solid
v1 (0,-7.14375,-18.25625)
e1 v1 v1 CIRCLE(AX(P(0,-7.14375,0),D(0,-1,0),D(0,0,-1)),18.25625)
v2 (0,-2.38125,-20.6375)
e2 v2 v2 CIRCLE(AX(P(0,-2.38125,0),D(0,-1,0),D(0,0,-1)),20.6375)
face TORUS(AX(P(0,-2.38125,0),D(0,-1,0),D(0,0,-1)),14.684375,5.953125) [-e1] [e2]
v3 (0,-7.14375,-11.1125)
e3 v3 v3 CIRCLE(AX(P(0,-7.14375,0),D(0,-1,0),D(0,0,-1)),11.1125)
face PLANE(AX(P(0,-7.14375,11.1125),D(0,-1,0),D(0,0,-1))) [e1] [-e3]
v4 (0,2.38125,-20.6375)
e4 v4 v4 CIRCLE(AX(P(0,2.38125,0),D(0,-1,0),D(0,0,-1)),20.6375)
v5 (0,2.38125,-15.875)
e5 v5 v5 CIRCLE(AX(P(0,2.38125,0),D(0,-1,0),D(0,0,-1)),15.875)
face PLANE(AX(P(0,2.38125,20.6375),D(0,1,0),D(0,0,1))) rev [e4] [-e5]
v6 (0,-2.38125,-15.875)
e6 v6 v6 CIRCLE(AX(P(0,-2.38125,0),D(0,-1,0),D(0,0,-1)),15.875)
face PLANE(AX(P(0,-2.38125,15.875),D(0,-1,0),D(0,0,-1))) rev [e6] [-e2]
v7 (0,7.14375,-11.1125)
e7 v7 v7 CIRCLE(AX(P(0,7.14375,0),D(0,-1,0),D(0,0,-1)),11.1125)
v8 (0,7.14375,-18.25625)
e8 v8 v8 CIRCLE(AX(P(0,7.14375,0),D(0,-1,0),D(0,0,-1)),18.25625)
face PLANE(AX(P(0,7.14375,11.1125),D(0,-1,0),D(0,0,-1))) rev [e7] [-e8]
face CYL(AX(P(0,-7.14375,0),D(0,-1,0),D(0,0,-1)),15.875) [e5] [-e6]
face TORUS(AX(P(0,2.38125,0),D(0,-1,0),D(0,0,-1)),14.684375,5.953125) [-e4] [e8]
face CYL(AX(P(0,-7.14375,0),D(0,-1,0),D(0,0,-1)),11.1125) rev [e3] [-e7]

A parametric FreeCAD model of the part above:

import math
import FreeCAD as App
import Part
import Sketcher

V = App.Vector
Q = App.Units.Quantity

doc = App.newDocument("Part")
body = doc.addObject("PartDesign::Body", "Body")

sketch1 = doc.addObject("Sketcher::SketchObject", "Sketch")
body.addObject(sketch1)
sketch1.AttachmentSupport = (doc.YZ_Plane, [""])
sketch1.MapMode = "FlatFace"
sketch1.addGeometry([
    Part.LineSegment(V(-7.14375, 11.1125, 0), V(7.14375, 11.1125, 0)),
    Part.LineSegment(V(7.14375, 11.1125, 0), V(7.14375, 18.25625, 0)),
    Part.ArcOfCircle(Part.Circle(V(2.38125, 14.684375, 0), V(0, 0, 1), 5.953125), math.radians(36.869898), math.radians(90)),
    Part.LineSegment(V(2.38125, 20.6375, 0), V(2.38125, 15.875, 0)),
    Part.LineSegment(V(2.38125, 15.875, 0), V(-2.38125, 15.875, 0)),
    Part.LineSegment(V(-2.38125, 15.875, 0), V(-2.38125, 20.6375, 0)),
    Part.ArcOfCircle(Part.Circle(V(-2.38125, 14.684375, 0), V(0, 0, 1), 5.953125), math.radians(90), math.radians(143.130102)),
    Part.LineSegment(V(-7.14375, 18.25625, 0), V(-7.14375, 11.1125, 0)),
], False)
sketch1.addConstraint([
    Sketcher.Constraint("Coincident", 0, 2, 1, 1),
    Sketcher.Constraint("Coincident", 1, 2, 2, 1),
    Sketcher.Constraint("Coincident", 2, 2, 3, 1),
    Sketcher.Constraint("Coincident", 3, 2, 4, 1),
    Sketcher.Constraint("Coincident", 4, 2, 5, 1),
    Sketcher.Constraint("Coincident", 5, 2, 6, 1),
    Sketcher.Constraint("Coincident", 6, 2, 7, 1),
    Sketcher.Constraint("Coincident", 7, 2, 0, 1),
    Sketcher.Constraint("Horizontal", 0),
    Sketcher.Constraint("Vertical", 1),
    Sketcher.Constraint("Vertical", 3),
    Sketcher.Constraint("Horizontal", 4),
    Sketcher.Constraint("Vertical", 5),
    Sketcher.Constraint("Vertical", 7),
    Sketcher.Constraint("Equal", 2, 6),
    Sketcher.Constraint("Symmetric", 2, 3, 6, 3, -2),
    Sketcher.Constraint("Horizontal", 1, 2, 6, 2),
    Sketcher.Constraint("Vertical", 6, 3, 4, 2),
    Sketcher.Constraint("Equal", 4, 3),
    Sketcher.Constraint("Radius", 2, Q("0.234375 in")),
    Sketcher.Constraint("DistanceX", 0, 1, 0, 2, Q("0.5625 in")),
    Sketcher.Constraint("DistanceX", 4, 2, 4, 1, Q("0.1875 in")),
    Sketcher.Constraint("DistanceY", 1, 1, 1, 2, Q("0.28125 in")),
    Sketcher.Constraint("DistanceX", -1, 1, 2, 3, Q("0.09375 in")),
    Sketcher.Constraint("DistanceY", -1, 1, 2, 3, Q("0.578125 in")),
])
revolution = doc.addObject("PartDesign::Revolution", "Revolution")
body.addObject(revolution)
revolution.Profile = sketch1
revolution.ReferenceAxis = (sketch1, ["H_Axis"])
revolution.Angle = 360

doc.recompute()
